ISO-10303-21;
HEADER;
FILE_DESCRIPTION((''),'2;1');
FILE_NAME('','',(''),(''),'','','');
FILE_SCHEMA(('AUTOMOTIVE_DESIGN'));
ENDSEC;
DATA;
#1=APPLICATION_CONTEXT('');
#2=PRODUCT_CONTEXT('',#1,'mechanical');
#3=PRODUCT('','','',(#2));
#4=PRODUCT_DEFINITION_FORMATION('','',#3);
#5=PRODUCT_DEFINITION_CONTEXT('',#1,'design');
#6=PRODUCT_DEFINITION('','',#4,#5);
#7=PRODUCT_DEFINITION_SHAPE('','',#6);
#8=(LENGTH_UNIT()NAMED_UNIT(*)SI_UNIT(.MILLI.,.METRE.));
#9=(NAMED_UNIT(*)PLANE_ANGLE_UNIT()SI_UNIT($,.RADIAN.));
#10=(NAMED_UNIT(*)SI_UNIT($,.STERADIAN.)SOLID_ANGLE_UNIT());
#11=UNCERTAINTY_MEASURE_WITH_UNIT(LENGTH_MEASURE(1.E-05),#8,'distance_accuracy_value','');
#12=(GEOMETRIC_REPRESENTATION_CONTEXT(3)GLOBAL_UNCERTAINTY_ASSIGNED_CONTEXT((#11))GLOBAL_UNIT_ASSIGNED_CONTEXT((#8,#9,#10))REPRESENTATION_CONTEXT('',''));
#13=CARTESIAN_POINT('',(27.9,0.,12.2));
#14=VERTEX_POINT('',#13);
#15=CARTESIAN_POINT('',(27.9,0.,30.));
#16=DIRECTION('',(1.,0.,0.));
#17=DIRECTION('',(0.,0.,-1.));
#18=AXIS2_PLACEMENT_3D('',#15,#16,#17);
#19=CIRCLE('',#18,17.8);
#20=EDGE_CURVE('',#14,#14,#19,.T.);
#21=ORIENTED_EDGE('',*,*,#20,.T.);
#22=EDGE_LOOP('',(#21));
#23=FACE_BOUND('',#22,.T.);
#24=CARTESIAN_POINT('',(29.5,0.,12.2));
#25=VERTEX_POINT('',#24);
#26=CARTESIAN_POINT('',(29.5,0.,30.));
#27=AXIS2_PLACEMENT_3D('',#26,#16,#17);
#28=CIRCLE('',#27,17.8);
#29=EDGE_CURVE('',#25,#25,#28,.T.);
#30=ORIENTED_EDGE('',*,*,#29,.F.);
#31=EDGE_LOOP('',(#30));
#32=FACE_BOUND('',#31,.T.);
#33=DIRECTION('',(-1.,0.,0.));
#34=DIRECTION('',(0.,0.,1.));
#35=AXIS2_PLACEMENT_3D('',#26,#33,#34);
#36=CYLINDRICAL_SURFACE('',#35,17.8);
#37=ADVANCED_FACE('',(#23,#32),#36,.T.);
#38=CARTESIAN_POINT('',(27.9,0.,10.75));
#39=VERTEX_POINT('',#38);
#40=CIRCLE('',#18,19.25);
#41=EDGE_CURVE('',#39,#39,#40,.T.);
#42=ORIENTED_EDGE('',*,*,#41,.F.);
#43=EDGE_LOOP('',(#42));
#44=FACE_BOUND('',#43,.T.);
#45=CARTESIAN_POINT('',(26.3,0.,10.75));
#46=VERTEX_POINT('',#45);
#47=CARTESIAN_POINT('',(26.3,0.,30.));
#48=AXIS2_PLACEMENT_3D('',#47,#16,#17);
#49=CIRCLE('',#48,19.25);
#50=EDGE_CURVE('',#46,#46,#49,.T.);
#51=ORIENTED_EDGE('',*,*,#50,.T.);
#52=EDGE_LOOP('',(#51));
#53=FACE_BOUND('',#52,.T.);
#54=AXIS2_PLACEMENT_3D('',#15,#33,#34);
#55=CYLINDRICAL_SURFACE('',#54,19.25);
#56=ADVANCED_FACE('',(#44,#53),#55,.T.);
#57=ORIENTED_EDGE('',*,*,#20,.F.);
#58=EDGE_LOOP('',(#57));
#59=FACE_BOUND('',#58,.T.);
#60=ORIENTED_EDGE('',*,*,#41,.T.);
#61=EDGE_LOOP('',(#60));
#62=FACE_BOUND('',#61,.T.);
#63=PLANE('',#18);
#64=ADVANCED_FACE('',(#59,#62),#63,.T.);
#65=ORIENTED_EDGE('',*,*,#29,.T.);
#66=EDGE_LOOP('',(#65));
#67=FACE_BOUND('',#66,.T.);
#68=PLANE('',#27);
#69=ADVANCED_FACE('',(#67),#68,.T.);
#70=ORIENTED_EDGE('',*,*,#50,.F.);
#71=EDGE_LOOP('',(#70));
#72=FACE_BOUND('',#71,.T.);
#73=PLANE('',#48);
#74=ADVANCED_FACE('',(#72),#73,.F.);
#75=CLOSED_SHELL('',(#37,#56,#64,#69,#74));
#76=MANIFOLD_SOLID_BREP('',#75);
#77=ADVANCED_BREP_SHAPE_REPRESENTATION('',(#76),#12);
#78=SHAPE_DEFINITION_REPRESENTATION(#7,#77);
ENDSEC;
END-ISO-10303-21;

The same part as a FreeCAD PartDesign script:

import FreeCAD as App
import Part
import Sketcher
Q = App.Units.Quantity

doc = App.newDocument("Part")
params = doc.addObject("Spreadsheet::Sheet", "Params")
for row, (alias, value) in enumerate([
    ("sketch1_diameter", "38.5 mm"),
    ("pad1_length", "1.6 mm"),
    ("sketch2_diameter", "35.6 mm"),
    ("pad2_length", "1.6 mm"),
], start=1):
    params.set(f"A{row}", alias)
    params.set(f"B{row}", "=" + value)
    params.setAlias(f"B{row}", alias)

body = doc.addObject("PartDesign::Body", "Body")

# Sketch on YZ plane
sketch1 = body.newObject("Sketcher::SketchObject", "Sketch")
sketch1.AttachmentSupport = (doc.getObject("YZ_Plane"), [""])
sketch1.MapMode = "FlatFace"
sketch1.AttachmentOffset = App.Placement(App.Vector(0, 0, 26.3), App.Rotation())
sketch1.addGeometry(Part.Circle(App.Vector(0, 30, 0), App.Vector(0, 0, 1), 19), False)
sketch1.addConstraint(Sketcher.Constraint("PointOnObject", 0, 3, -2))
sketch1.addConstraint(Sketcher.Constraint("Diameter", 0, Q("38.5 mm")))
sketch1.addConstraint(Sketcher.Constraint("DistanceY", -1, 1, 0, 3, Q("30 mm")))
sketch1.setExpression("Constraints[1]", "Params.sketch1_diameter")
pad1 = body.newObject("PartDesign::Pad", "Pad")
pad1.Profile = sketch1
pad1.setExpression("Length", "Params.pad1_length")

# Sketch on YZ plane
sketch2 = body.newObject("Sketcher::SketchObject", "Sketch001")
sketch2.AttachmentSupport = (doc.getObject("YZ_Plane"), [""])
sketch2.MapMode = "FlatFace"
sketch2.AttachmentOffset = App.Placement(App.Vector(0, 0, 27.9), App.Rotation())
sketch2.addGeometry(Part.Circle(App.Vector(0, 30, 0), App.Vector(0, 0, 1), 18), False)
sketch2.addConstraint(Sketcher.Constraint("PointOnObject", 0, 3, -2))
sketch2.addConstraint(Sketcher.Constraint("Diameter", 0, Q("35.6 mm")))
sketch2.addConstraint(Sketcher.Constraint("DistanceY", -1, 1, 0, 3, Q("30 mm")))
sketch2.setExpression("Constraints[1]", "Params.sketch2_diameter")
pad2 = body.newObject("PartDesign::Pad", "Pad001")
pad2.Profile = sketch2
pad2.setExpression("Length", "Params.pad2_length")

doc.recompute()
